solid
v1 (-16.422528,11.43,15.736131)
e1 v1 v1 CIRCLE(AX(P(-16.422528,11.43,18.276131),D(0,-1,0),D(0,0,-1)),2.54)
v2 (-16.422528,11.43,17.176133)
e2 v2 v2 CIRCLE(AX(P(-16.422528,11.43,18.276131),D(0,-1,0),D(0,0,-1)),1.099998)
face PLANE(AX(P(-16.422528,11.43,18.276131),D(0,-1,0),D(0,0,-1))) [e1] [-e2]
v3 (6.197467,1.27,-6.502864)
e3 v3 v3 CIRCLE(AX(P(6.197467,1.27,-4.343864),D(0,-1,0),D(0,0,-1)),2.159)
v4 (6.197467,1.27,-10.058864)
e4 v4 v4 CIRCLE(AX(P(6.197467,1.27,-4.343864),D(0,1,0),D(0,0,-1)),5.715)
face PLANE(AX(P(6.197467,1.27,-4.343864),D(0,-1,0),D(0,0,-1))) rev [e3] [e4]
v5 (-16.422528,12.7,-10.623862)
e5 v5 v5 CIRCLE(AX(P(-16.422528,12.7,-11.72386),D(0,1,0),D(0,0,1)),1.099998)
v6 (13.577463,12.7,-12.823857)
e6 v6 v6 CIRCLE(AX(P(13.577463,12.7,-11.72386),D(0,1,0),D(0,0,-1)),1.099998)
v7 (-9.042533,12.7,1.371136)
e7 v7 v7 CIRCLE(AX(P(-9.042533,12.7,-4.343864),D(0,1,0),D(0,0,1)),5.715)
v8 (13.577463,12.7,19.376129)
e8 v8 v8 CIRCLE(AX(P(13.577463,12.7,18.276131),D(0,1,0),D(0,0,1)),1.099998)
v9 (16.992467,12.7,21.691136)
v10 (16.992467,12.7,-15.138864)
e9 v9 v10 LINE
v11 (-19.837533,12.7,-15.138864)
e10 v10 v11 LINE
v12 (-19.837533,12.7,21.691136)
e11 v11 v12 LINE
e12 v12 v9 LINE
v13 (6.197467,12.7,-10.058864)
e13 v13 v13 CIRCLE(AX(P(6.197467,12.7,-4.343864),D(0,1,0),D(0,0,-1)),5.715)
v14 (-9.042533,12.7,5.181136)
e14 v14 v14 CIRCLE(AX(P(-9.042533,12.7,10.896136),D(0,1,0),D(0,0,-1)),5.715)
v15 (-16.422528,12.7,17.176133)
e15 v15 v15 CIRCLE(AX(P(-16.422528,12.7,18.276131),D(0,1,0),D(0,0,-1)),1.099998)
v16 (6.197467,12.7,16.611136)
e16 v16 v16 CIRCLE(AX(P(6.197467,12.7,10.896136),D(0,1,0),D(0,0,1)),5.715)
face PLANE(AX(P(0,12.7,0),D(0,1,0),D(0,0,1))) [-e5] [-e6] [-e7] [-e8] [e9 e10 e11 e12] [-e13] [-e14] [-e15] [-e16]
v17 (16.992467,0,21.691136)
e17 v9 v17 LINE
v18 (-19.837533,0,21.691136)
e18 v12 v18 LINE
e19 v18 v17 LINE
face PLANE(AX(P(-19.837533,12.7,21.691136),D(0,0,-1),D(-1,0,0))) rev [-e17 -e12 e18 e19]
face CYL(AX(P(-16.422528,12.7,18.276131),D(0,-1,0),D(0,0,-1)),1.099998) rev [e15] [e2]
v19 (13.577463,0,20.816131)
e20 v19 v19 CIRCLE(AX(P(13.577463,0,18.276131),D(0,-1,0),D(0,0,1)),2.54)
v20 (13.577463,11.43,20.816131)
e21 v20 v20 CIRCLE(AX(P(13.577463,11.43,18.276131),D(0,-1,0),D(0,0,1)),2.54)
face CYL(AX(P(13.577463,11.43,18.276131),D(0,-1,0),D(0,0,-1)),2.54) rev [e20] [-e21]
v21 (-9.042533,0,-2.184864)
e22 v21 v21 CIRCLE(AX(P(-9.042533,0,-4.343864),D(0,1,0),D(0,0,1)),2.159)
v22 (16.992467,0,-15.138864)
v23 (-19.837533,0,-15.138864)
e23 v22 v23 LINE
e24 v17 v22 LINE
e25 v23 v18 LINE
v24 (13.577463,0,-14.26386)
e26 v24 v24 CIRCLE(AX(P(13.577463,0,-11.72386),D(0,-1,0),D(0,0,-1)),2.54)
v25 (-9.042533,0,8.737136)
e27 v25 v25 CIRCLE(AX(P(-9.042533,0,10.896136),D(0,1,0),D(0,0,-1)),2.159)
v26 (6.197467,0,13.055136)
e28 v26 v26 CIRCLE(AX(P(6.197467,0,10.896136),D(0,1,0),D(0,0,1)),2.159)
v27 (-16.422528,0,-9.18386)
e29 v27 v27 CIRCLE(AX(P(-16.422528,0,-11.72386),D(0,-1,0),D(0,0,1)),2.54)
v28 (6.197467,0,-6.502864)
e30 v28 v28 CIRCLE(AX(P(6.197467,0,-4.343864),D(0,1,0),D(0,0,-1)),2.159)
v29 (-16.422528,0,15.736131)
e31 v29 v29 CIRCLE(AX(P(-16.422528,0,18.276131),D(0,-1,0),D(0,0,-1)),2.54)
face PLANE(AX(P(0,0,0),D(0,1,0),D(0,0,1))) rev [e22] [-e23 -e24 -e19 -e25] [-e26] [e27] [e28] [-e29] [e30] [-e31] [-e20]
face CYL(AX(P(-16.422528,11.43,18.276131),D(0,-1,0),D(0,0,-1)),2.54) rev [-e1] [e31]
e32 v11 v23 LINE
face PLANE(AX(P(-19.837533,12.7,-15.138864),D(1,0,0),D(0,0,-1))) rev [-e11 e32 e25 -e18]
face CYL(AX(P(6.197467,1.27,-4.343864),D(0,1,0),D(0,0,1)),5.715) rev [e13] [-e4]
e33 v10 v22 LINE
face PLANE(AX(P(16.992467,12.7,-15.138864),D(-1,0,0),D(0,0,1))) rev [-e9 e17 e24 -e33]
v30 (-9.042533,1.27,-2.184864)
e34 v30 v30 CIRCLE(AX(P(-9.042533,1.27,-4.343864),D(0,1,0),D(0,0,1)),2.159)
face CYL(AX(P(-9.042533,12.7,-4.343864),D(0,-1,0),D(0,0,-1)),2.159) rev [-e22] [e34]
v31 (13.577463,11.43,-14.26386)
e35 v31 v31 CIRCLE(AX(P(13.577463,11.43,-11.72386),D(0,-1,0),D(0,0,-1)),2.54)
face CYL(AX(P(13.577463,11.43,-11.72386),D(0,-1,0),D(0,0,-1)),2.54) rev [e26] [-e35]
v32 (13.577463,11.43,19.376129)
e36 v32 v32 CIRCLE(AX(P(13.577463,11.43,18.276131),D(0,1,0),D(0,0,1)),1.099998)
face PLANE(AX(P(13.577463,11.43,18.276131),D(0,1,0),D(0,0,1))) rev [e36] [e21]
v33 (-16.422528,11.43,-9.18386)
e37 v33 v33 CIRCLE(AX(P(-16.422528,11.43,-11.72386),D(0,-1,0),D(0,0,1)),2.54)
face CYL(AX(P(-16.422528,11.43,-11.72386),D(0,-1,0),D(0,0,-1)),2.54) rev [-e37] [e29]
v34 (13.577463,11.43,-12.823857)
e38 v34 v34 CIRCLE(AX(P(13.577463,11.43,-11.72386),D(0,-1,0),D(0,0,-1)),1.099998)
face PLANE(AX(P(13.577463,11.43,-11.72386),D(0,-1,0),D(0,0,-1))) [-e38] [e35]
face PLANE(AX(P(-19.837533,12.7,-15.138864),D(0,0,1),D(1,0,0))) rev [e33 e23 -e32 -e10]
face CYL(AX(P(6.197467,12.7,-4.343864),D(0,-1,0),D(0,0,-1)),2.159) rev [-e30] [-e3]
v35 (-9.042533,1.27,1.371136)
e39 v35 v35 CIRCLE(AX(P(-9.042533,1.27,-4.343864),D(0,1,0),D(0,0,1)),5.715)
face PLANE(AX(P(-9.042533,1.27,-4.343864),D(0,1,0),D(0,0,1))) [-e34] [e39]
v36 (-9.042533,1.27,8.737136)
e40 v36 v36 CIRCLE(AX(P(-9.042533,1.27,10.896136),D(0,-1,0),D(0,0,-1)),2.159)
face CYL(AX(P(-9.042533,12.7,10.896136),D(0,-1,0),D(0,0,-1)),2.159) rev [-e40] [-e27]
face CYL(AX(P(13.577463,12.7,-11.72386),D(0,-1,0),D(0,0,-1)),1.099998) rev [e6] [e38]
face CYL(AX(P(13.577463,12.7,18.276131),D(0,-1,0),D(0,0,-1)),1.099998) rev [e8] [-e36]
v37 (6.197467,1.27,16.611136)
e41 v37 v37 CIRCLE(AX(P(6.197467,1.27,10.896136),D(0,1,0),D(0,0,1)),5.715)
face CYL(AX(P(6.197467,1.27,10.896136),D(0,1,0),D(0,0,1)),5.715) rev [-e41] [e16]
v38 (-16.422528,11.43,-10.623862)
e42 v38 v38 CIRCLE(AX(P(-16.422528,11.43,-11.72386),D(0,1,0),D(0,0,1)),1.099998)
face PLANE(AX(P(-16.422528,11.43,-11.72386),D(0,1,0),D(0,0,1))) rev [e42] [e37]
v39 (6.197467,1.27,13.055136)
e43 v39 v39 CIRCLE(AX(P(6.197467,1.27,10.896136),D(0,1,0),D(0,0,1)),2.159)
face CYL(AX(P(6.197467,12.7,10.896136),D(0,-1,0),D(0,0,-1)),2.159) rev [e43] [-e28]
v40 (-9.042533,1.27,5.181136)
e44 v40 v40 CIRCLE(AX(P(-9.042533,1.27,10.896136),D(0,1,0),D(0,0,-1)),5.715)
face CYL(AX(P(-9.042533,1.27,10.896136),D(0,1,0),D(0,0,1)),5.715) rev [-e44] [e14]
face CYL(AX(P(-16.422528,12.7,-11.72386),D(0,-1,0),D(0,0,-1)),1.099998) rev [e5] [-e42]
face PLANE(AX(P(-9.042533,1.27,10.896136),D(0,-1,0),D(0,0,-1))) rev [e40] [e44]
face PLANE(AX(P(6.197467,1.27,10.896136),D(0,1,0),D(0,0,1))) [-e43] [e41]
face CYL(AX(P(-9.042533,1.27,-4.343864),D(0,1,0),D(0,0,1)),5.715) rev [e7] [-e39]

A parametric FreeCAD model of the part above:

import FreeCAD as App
import Part
import Sketcher
from FreeCAD import Vector
Q = App.Units.Quantity

doc = App.newDocument("Part")
params = doc.addObject("Spreadsheet::Sheet", "Params")
for row, (alias, value) in enumerate([
    ("sketch1_diameter", "0.17 in"),
    ("sketch1_width", "1.45 in"),
    ("pad1_length", "0.5 in"),
    ("sketch2_diameter", "0.45 in"),
    ("pocket1_length", "0.45 in"),
    ("sketch3_diameter", "0.2 in"),
    ("pocket2_length", "0.45 in"),
], start=1):
    params.set(f"A{row}", alias)
    params.set(f"B{row}", "=" + value)
    params.setAlias(f"B{row}", alias)

body = doc.addObject("PartDesign::Body", "Body")

# Sketch on XZ plane
sketch1 = body.newObject("Sketcher::SketchObject", "Sketch")
sketch1.AttachmentSupport = (doc.getObject("XZ_Plane"), [""])
sketch1.MapMode = "FlatFace"
sketch1.addGeometry(Part.LineSegment(Vector(-19.837533, -15.138864, 0), Vector(-19.837533, 21.691136, 0)), False)
sketch1.addGeometry(Part.LineSegment(Vector(-19.837533, 21.691136, 0), Vector(16.992467, 21.691136, 0)), False)
sketch1.addGeometry(Part.LineSegment(Vector(16.992467, 21.691136, 0), Vector(16.992467, -15.138864, 0)), False)
sketch1.addGeometry(Part.LineSegment(Vector(16.992467, -15.138864, 0), Vector(-19.837533, -15.138864, 0)), False)
sketch1.addGeometry(Part.Circle(Vector(-16.422528, 18.276131, 0), Vector(0, 0, 1), 1.099998), False)
sketch1.addGeometry(Part.Circle(Vector(-9.042533, 10.896136, 0), Vector(0, 0, 1), 2.159), False)
sketch1.addGeometry(Part.Circle(Vector(13.577463, 18.276131, 0), Vector(0, 0, 1), 1.099998), False)
sketch1.addGeometry(Part.Circle(Vector(6.197467, 10.896136, 0), Vector(0, 0, 1), 2.159), False)
sketch1.addGeometry(Part.Circle(Vector(-9.042533, -4.343864, 0), Vector(0, 0, 1), 2.159), False)
sketch1.addGeometry(Part.Circle(Vector(-16.422528, -11.72386, 0), Vector(0, 0, 1), 1.099998), False)
sketch1.addGeometry(Part.Circle(Vector(6.197467, -4.343864, 0), Vector(0, 0, 1), 2.159), False)
sketch1.addGeometry(Part.Circle(Vector(13.577463, -11.72386, 0), Vector(0, 0, 1), 1.099998), False)
sketch1.addConstraint(Sketcher.Constraint("Coincident", 0, 2, 1, 1))
sketch1.addConstraint(Sketcher.Constraint("Coincident", 1, 2, 2, 1))
sketch1.addConstraint(Sketcher.Constraint("Coincident", 2, 2, 3, 1))
sketch1.addConstraint(Sketcher.Constraint("Coincident", 3, 2, 0, 1))
sketch1.addConstraint(Sketcher.Constraint("Vertical", 0))
sketch1.addConstraint(Sketcher.Constraint("Horizontal", 1))
sketch1.addConstraint(Sketcher.Constraint("Vertical", 2))
sketch1.addConstraint(Sketcher.Constraint("Horizontal", 3))
sketch1.addConstraint(Sketcher.Constraint("Equal", 4, 6))
sketch1.addConstraint(Sketcher.Constraint("Equal", 5, 7))
sketch1.addConstraint(Sketcher.Constraint("Equal", 7, 8))
sketch1.addConstraint(Sketcher.Constraint("Equal", 6, 9))
sketch1.addConstraint(Sketcher.Constraint("Equal", 8, 10))
sketch1.addConstraint(Sketcher.Constraint("Equal", 9, 11))
sketch1.addConstraint(Sketcher.Constraint("Horizontal", 4, 3, 6, 3))
sketch1.addConstraint(Sketcher.Constraint("Horizontal", 5, 3, 7, 3))
sketch1.addConstraint(Sketcher.Constraint("Horizontal", 8, 3, 10, 3))
sketch1.addConstraint(Sketcher.Constraint("Horizontal", 9, 3, 11, 3))
sketch1.addConstraint(Sketcher.Constraint("Vertical", 5, 3, 8, 3))
sketch1.addConstraint(Sketcher.Constraint("Vertical", 4, 3, 9, 3))
sketch1.addConstraint(Sketcher.Constraint("Vertical", 7, 3, 10, 3))
sketch1.addConstraint(Sketcher.Constraint("Vertical", 6, 3, 11, 3))
sketch1.addConstraint(Sketcher.Constraint("Equal", 3, 0))
sketch1.addConstraint(Sketcher.Constraint("Diameter", 5, Q("0.17 in")))
sketch1.addConstraint(Sketcher.Constraint("DistanceX", 1, 1, 1, 2, Q("1.45 in")))
sketch1.addConstraint(Sketcher.Constraint("DistanceX", 5, 3, 7, 3, Q("0.6 in")))
sketch1.addConstraint(Sketcher.Constraint("DistanceY", 8, 3, 5, 3, Q("0.6 in")))
sketch1.addConstraint(Sketcher.Constraint("DistanceX", 0, 2, 5, 3, Q("0.425 in")))
sketch1.addConstraint(Sketcher.Constraint("DistanceY", 5, 3, 0, 2, Q("0.425 in")))
sketch1.addConstraint(Sketcher.Constraint("Diameter", 4, Q("2.199996 mm")))
sketch1.addConstraint(Sketcher.Constraint("DistanceX", 4, 3, -1, 1, Q("16.422528 mm")))
sketch1.addConstraint(Sketcher.Constraint("DistanceY", -1, 1, 4, 3, Q("18.276131 mm")))
sketch1.addConstraint(Sketcher.Constraint("DistanceY", 9, 3, -1, 1, Q("11.72386 mm")))
sketch1.addConstraint(Sketcher.Constraint("DistanceX", 4, 3, 6, 3, Q("29.999991 mm")))
sketch1.addConstraint(Sketcher.Constraint("DistanceX", 5, 3, -1, 1, Q("9.042533 mm")))
sketch1.addConstraint(Sketcher.Constraint("DistanceY", -1, 1, 5, 3, Q("10.896136 mm")))
sketch1.setExpression("Constraints[23]", "Params.sketch1_diameter")
sketch1.setExpression("Constraints[24]", "Params.sketch1_width")
pad1 = body.newObject("PartDesign::Pad", "Pad")
pad1.Profile = sketch1
pad1.setExpression("Length", "Params.pad1_length")
pad1.Reversed = True

# Sketch on XZ plane
sketch2 = body.newObject("Sketcher::SketchObject", "Sketch001")
sketch2.AttachmentSupport = (doc.getObject("XZ_Plane"), [""])
sketch2.MapMode = "FlatFace"
sketch2.AttachmentOffset = App.Placement(Vector(0, 0, -0.5 * 25.4), App.Rotation())
sketch2.addGeometry(Part.Circle(Vector(-9.042533, -4.343864, 0), Vector(0, 0, 1), 5.715), False)
sketch2.addGeometry(Part.Circle(Vector(6.197467, -4.343864, 0), Vector(0, 0, 1), 5.715), False)
sketch2.addGeometry(Part.Circle(Vector(6.197467, 10.896136, 0), Vector(0, 0, 1), 5.715), False)
sketch2.addGeometry(Part.Circle(Vector(-9.042533, 10.896136, 0), Vector(0, 0, 1), 5.715), False)
sketch2.addConstraint(Sketcher.Constraint("Equal", 0, 1))
sketch2.addConstraint(Sketcher.Constraint("Equal", 1, 2))
sketch2.addConstraint(Sketcher.Constraint("Equal", 2, 3))
sketch2.addConstraint(Sketcher.Constraint("Horizontal", 0, 3, 1, 3))
sketch2.addConstraint(Sketcher.Constraint("Horizontal", 2, 3, 3, 3))
sketch2.addConstraint(Sketcher.Constraint("Vertical", 1, 3, 2, 3))
sketch2.addConstraint(Sketcher.Constraint("Vertical", 0, 3, 3, 3))
sketch2.addConstraint(Sketcher.Constraint("Diameter", 0, Q("0.45 in")))
sketch2.addConstraint(Sketcher.Constraint("DistanceX", 0, 3, 1, 3, Q("0.6 in")))
sketch2.addConstraint(Sketcher.Constraint("DistanceY", 1, 3, 2, 3, Q("0.6 in")))
sketch2.addConstraint(Sketcher.Constraint("DistanceX", 0, 3, -1, 1, Q("9.042533 mm")))
sketch2.addConstraint(Sketcher.Constraint("DistanceY", 0, 3, -1, 1, Q("4.343864 mm")))
sketch2.setExpression("Constraints[7]", "Params.sketch2_diameter")
pocket1 = body.newObject("PartDesign::Pocket", "Pocket")
pocket1.Profile = sketch2
pocket1.setExpression("Length", "Params.pocket1_length")
pocket1.Reversed = True

# Sketch on XZ plane
sketch3 = body.newObject("Sketcher::SketchObject", "Sketch002")
sketch3.AttachmentSupport = (doc.getObject("XZ_Plane"), [""])
sketch3.MapMode = "FlatFace"
sketch3.addGeometry(Part.Circle(Vector(-16.422528, 18.276131, 0), Vector(0, 0, 1), 2.54), False)
sketch3.addGeometry(Part.Circle(Vector(13.577463, 18.276131, 0), Vector(0, 0, 1), 2.54), False)
sketch3.addGeometry(Part.Circle(Vector(13.577463, -11.72386, 0), Vector(0, 0, 1), 2.54), False)
sketch3.addGeometry(Part.Circle(Vector(-16.422528, -11.72386, 0), Vector(0, 0, 1), 2.54), False)
sketch3.addConstraint(Sketcher.Constraint("Equal", 0, 1))
sketch3.addConstraint(Sketcher.Constraint("Equal", 1, 2))
sketch3.addConstraint(Sketcher.Constraint("Equal", 2, 3))
sketch3.addConstraint(Sketcher.Constraint("Horizontal", 0, 3, 1, 3))
sketch3.addConstraint(Sketcher.Constraint("Horizontal", 2, 3, 3, 3))
sketch3.addConstraint(Sketcher.Constraint("Vertical", 1, 3, 2, 3))
sketch3.addConstraint(Sketcher.Constraint("Vertical", 0, 3, 3, 3))
sketch3.addConstraint(Sketcher.Constraint("Diameter", 0, Q("0.2 in")))
sketch3.addConstraint(Sketcher.Constraint("DistanceX", 0, 3, -1, 1, Q("16.422528 mm")))
sketch3.addConstraint(Sketcher.Constraint("DistanceY", -1, 1, 0, 3, Q("18.276131 mm")))
sketch3.addConstraint(Sketcher.Constraint("DistanceY", 2, 3, -1, 1, Q("11.72386 mm")))
sketch3.addConstraint(Sketcher.Constraint("DistanceX", 0, 3, 1, 3, Q("29.999991 mm")))
sketch3.setExpression("Constraints[7]", "Params.sketch3_diameter")
pocket2 = body.newObject("PartDesign::Pocket", "Pocket001")
pocket2.Profile = sketch3
pocket2.setExpression("Length", "Params.pocket2_length")

doc.recompute()
